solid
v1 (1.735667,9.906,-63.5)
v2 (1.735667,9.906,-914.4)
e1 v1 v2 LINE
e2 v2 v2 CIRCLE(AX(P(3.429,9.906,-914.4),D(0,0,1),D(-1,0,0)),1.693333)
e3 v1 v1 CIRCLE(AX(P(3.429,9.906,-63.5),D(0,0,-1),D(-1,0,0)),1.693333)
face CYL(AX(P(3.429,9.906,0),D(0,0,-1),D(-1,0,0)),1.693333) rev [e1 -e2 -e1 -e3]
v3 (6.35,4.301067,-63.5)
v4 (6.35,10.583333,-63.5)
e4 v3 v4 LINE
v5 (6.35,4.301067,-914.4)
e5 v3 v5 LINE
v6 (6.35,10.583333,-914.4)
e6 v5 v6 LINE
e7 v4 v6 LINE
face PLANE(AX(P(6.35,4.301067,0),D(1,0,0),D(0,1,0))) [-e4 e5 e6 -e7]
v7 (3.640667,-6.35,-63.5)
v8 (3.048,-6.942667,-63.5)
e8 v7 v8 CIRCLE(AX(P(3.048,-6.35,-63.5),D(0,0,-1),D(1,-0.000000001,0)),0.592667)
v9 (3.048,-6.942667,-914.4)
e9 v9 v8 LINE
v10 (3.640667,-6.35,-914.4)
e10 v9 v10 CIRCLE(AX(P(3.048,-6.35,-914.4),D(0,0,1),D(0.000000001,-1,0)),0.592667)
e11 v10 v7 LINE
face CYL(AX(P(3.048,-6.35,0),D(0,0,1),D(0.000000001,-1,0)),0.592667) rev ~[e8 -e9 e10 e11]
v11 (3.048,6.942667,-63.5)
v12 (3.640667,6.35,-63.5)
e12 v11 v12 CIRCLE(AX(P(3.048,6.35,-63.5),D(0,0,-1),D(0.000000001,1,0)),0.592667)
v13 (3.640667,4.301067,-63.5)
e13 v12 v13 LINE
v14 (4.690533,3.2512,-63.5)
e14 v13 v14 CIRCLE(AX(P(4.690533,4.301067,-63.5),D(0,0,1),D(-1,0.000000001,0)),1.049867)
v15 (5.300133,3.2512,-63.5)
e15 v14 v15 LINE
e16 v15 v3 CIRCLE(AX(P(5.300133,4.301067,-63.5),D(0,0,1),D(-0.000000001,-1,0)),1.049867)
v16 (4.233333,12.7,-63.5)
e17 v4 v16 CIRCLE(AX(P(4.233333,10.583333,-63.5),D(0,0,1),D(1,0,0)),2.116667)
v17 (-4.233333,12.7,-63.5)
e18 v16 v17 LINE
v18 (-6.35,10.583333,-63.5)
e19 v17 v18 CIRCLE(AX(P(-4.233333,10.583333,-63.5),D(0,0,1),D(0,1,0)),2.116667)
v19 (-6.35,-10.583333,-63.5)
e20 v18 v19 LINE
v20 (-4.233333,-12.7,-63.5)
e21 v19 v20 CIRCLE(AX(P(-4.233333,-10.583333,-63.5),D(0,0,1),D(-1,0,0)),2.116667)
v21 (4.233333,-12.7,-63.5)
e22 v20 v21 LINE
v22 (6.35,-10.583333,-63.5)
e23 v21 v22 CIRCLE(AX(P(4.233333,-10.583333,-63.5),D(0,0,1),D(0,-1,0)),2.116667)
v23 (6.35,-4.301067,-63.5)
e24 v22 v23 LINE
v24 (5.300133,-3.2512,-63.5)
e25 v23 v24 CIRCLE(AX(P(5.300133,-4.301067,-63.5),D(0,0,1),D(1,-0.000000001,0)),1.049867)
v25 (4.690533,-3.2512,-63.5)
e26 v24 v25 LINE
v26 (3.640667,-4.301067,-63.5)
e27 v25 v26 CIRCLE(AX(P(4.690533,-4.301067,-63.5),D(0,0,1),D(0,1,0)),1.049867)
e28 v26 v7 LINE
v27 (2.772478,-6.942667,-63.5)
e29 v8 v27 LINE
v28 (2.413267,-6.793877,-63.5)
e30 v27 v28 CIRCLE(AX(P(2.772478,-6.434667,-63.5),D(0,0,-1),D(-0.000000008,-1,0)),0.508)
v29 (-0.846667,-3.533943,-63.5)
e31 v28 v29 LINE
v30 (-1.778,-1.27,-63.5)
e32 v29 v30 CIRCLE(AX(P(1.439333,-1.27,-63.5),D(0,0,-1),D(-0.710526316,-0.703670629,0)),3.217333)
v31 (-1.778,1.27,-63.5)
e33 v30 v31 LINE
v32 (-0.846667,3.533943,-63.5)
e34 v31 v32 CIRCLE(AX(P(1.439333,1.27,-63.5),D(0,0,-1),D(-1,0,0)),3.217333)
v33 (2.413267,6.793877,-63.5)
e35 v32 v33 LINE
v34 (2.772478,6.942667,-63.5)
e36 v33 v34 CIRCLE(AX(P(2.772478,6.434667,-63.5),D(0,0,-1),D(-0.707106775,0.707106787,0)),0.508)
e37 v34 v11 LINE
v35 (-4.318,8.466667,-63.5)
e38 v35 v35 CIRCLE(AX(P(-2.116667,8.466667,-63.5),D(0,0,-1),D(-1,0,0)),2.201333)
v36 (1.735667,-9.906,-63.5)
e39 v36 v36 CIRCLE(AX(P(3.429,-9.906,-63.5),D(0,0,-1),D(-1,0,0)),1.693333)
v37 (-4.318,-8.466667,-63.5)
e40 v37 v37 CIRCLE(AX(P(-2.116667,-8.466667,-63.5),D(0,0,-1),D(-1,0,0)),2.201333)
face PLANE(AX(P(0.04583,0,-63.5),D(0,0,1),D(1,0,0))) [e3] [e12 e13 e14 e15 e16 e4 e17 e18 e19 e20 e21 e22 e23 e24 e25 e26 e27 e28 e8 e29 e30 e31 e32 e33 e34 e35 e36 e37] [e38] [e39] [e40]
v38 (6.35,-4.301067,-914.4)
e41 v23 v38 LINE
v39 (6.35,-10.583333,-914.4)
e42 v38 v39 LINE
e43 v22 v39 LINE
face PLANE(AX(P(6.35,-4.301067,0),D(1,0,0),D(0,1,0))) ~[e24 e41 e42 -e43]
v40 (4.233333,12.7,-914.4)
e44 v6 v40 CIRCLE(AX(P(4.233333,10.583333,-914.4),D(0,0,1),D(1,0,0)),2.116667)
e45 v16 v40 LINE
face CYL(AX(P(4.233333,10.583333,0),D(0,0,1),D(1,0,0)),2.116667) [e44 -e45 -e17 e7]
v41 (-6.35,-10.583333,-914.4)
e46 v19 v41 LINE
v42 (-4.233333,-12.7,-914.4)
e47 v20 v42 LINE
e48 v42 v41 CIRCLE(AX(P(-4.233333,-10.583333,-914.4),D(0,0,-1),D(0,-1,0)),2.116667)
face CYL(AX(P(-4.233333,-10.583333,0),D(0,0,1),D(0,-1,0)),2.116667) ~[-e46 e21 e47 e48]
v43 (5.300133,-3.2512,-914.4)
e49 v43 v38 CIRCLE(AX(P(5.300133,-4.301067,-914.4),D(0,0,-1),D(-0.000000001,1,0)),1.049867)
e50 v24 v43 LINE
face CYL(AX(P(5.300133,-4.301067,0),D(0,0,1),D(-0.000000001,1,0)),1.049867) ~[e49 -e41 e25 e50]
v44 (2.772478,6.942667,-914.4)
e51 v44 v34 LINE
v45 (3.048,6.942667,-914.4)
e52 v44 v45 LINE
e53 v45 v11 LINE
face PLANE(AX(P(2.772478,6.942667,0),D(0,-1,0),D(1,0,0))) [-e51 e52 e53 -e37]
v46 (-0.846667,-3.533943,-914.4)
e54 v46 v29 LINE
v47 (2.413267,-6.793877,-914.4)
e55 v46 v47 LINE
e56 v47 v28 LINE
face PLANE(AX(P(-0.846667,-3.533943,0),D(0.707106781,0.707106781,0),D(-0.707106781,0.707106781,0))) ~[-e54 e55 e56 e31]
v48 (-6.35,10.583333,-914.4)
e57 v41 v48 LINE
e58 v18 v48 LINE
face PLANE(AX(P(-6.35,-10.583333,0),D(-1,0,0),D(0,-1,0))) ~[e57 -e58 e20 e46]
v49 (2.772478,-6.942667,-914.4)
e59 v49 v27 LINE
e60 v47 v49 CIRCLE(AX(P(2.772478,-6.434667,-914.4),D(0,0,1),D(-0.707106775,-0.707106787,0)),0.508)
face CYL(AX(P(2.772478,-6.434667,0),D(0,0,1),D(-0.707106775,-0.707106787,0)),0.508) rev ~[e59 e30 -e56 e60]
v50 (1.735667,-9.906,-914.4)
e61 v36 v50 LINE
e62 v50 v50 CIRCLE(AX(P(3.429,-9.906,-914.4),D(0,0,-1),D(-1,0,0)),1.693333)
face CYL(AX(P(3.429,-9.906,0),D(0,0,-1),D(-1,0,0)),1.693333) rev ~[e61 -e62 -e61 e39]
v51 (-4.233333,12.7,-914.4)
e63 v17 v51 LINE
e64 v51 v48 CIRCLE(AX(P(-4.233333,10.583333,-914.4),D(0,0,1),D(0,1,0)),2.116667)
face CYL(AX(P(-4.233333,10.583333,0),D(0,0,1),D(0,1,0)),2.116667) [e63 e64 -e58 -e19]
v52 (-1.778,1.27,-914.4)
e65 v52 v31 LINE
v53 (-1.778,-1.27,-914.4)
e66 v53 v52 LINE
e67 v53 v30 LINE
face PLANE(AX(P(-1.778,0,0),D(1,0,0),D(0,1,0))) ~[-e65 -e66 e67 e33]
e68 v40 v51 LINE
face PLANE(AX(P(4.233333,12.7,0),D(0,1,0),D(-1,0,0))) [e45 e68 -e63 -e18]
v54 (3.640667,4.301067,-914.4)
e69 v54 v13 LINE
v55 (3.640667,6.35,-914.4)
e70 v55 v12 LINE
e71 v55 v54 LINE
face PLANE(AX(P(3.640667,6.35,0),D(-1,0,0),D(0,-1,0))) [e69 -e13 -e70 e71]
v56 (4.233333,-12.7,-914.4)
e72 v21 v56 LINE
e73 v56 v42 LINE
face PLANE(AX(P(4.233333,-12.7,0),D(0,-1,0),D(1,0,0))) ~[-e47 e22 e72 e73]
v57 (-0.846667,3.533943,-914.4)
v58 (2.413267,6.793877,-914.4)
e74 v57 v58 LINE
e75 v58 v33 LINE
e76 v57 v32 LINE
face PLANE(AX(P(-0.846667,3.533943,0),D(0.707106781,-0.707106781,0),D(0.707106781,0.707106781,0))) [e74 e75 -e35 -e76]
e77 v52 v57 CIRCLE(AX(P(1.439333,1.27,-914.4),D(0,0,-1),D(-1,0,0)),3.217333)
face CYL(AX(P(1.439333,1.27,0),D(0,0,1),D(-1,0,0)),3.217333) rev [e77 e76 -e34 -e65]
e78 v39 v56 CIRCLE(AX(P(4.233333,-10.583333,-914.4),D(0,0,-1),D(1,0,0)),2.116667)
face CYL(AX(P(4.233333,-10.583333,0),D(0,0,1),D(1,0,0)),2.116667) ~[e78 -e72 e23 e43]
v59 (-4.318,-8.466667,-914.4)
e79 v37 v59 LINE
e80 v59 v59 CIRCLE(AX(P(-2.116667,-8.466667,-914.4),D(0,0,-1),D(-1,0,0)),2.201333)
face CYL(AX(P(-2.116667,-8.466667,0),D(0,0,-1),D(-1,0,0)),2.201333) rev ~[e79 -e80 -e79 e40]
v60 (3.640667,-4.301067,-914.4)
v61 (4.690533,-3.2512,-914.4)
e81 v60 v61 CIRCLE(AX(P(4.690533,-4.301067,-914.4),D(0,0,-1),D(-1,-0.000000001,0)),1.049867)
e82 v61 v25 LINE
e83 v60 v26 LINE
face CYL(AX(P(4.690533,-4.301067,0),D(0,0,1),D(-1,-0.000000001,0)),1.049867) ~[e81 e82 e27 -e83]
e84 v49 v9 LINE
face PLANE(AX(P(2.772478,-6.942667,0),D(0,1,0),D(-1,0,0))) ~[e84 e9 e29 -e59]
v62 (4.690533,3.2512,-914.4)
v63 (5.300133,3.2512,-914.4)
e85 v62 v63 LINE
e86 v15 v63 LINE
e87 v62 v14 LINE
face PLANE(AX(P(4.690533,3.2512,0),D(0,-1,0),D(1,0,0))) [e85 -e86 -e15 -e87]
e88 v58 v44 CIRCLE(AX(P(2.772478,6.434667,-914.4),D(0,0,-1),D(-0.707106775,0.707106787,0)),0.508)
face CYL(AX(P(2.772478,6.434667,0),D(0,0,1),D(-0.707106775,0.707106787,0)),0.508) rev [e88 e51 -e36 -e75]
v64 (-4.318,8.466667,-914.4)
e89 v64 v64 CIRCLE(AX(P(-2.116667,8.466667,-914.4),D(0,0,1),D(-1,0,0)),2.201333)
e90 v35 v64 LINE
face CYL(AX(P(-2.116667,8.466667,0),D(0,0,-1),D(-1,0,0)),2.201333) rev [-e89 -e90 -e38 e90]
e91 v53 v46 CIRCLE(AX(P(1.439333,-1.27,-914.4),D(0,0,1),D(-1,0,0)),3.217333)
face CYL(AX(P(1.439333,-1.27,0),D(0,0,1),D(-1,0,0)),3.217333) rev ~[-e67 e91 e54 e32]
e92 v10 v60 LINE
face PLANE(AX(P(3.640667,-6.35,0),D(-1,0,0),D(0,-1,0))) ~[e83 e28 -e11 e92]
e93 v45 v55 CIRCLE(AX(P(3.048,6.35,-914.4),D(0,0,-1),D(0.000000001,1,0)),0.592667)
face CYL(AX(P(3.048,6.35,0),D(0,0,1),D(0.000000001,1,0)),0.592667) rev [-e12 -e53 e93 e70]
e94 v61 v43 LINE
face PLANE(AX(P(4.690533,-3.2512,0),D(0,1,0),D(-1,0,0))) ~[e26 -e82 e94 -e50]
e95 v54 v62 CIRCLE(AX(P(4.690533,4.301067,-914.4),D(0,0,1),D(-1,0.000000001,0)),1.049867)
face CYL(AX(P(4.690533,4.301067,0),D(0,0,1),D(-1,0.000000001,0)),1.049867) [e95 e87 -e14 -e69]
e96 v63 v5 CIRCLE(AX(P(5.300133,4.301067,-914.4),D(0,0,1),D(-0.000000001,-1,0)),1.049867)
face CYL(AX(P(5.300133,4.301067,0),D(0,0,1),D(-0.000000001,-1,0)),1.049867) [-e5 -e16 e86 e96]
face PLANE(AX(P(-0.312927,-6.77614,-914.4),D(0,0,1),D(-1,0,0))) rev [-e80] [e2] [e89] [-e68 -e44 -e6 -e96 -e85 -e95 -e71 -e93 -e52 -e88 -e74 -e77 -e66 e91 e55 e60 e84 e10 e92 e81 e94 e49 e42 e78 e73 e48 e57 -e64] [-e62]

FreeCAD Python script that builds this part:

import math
import FreeCAD as App
import Part
import Sketcher
from FreeCAD import Vector
Q = App.Units.Quantity

doc = App.newDocument("Part")
body = doc.addObject("PartDesign::Body", "Body")

# Sketch on XY plane
sketch1 = body.newObject("Sketcher::SketchObject", "Sketch")
sketch1.AttachmentSupport = (doc.getObject("XY_Plane"), [""])
sketch1.MapMode = "FlatFace"
sketch1.addGeometry([
    Part.LineSegment(Vector(-1.778, 0, 0), Vector(-1.778, 1.27, 0)),  # 0
    Part.ArcOfCircle(Part.Circle(Vector(1.439333, 1.27, 0), Vector(0, 0, 1), 3.217333), math.radians(135.277754), math.radians(180)),  # 1
    Part.LineSegment(Vector(-0.846667, 3.533943, 0), Vector(2.413267, 6.793877, 0)),  # 2
    Part.ArcOfCircle(Part.Circle(Vector(2.772478, 6.434667, 0), Vector(0, 0, 1), 0.508), math.radians(90), math.radians(135)),  # 3
    Part.LineSegment(Vector(2.772478, 6.942667, 0), Vector(3.048, 6.942667, 0)),  # 4
    Part.ArcOfCircle(Part.Circle(Vector(3.048, 6.35, 0), Vector(0, 0, 1), 0.592667), math.radians(0), math.radians(90)),  # 5
    Part.LineSegment(Vector(3.640667, 6.35, 0), Vector(3.640667, 4.301067, 0)),  # 6
    Part.ArcOfCircle(Part.Circle(Vector(4.690533, 4.301067, 0), Vector(0, 0, 1), 1.049867), math.radians(180), math.radians(270)),  # 7
    Part.LineSegment(Vector(4.690533, 3.2512, 0), Vector(5.300133, 3.2512, 0)),  # 8
    Part.ArcOfCircle(Part.Circle(Vector(5.300133, 4.301067, 0), Vector(0, 0, 1), 1.049867), math.radians(-90), math.radians(0)),  # 9
    Part.LineSegment(Vector(6.35, 4.301067, 0), Vector(6.35, 10.583333, 0)),  # 10
    Part.ArcOfCircle(Part.Circle(Vector(4.233333, 10.583333, 0), Vector(0, 0, 1), 2.116667), math.radians(0), math.radians(90)),  # 11
    Part.LineSegment(Vector(4.233333, 12.7, 0), Vector(-4.233333, 12.7, 0)),  # 12
    Part.ArcOfCircle(Part.Circle(Vector(-4.233333, 10.583333, 0), Vector(0, 0, 1), 2.116667), math.radians(90), math.radians(180)),  # 13
    Part.LineSegment(Vector(-6.35, 10.583333, 0), Vector(-6.35, 0, 0)),  # 14
    Part.LineSegment(Vector(-6.35, 0, 0), Vector(-1.778, 0, 0)),  # 15
    Part.Circle(Vector(-2.116667, 8.466667, 0), Vector(0, 0, 1), 2.201333),  # 16
    Part.Circle(Vector(3.429, 9.906, 0), Vector(0, 0, 1), 1.693333),  # 17
], False)
sketch1.addConstraint([
    Sketcher.Constraint("Tangent", 0, 2, 1, 2),
    Sketcher.Constraint("Coincident", 1, 1, 2, 1),
    Sketcher.Constraint("Tangent", 2, 2, 3, 2),
    Sketcher.Constraint("Tangent", 3, 1, 4, 1),
    Sketcher.Constraint("Tangent", 4, 2, 5, 2),
    Sketcher.Constraint("Tangent", 5, 1, 6, 1),
    Sketcher.Constraint("Tangent", 6, 2, 7, 1),
    Sketcher.Constraint("Tangent", 7, 2, 8, 1),
    Sketcher.Constraint("Tangent", 8, 2, 9, 1),
    Sketcher.Constraint("Tangent", 9, 2, 10, 1),
    Sketcher.Constraint("Tangent", 10, 2, 11, 1),
    Sketcher.Constraint("Tangent", 11, 2, 12, 1),
    Sketcher.Constraint("Tangent", 12, 2, 13, 1),
    Sketcher.Constraint("Tangent", 13, 2, 14, 1),
    Sketcher.Constraint("Coincident", 14, 2, 15, 1),
    Sketcher.Constraint("Coincident", 15, 2, 0, 1),
    Sketcher.Constraint("Vertical", 0),
    Sketcher.Constraint("Horizontal", 4),
    Sketcher.Constraint("Vertical", 6),
    Sketcher.Constraint("Horizontal", 8),
    Sketcher.Constraint("Vertical", 10),
    Sketcher.Constraint("Horizontal", 12),
    Sketcher.Constraint("Vertical", 14),
    Sketcher.Constraint("Horizontal", 15),
    Sketcher.Constraint("Equal", 7, 9),
    Sketcher.Constraint("Equal", 11, 13),
    Sketcher.Constraint("PointOnObject", 14, 2, -1),
    Sketcher.Constraint("Radius", 3, Q("0.02 in")),
    Sketcher.Constraint("Angle", 2, Q("45 deg")),
    Sketcher.Constraint("DistanceX", 15, 1, 15, 2, Q("0.18 in")),
    Sketcher.Constraint("DistanceY", 0, 1, 0, 2, Q("0.05 in")),
    Sketcher.Constraint("DistanceY", -1, 1, 11, 2, Q("0.5 in")),
    Sketcher.Constraint("DistanceY", 1, 3, 5, 3, Q("0.2 in")),
    Sketcher.Constraint("DistanceX", 8, 1, 8, 2, Q("0.024 in")),
    Sketcher.Constraint("DistanceX", -1, 1, 5, 3, Q("0.12 in")),
    Sketcher.Constraint("DistanceY", -1, 1, 17, 3, Q("0.39 in")),
    Sketcher.Constraint("DistanceX", 0, 2, -1, 1, Q("0.07 in")),
    Sketcher.Constraint("DistanceX", -1, 1, 9, 2, Q("0.25 in")),
    Sketcher.Constraint("DistanceX", 1, 3, 11, 3, Q("0.11 in")),
    Sketcher.Constraint("DistanceY", 3, 3, 16, 3, Q("0.08 in")),
    Sketcher.Constraint("DistanceX", 16, 3, 11, 3, Q("0.25 in")),
    Sketcher.Constraint("DistanceX", 1, 1, 1, 3, Q("0.09 in")),
    Sketcher.Constraint("DistanceX", -1, 1, 17, 3, Q("0.135 in")),
    Sketcher.Constraint("DistanceY", -1, 1, 7, 2, Q("0.128 in")),
    Sketcher.Constraint("DistanceY", 7, 3, 3, 3, Q("0.084 in")),
    Sketcher.Constraint("DistanceX", 1, 3, 7, 3, Q("0.128 in")),
    Sketcher.Constraint("Diameter", 16, 4.402667),
    Sketcher.Constraint("Diameter", 17, 3.386667),
])
pad1 = body.newObject("PartDesign::Pad", "Pad")
pad1.Profile = sketch1
pad1.Length = Q("72 in")
pad1.Midplane = True
body2 = doc.addObject("PartDesign::Body", "Body001")
doc.recompute()

body2.BaseFeature = body
doc.recompute()

mirroring = doc.addObject("Part::Mirroring", "Mirroring")
mirroring.Source = body
mirroring.Base = Vector(0, 0, 0)
mirroring.Normal = Vector(0, 1, 0)
body3 = doc.addObject("PartDesign::Body", "Body002")
body3.BaseFeature = mirroring
boolean = body2.newObject("PartDesign::Boolean", "Boolean")
boolean.Type = "Fuse"
boolean.addObjects([body3])
doc.recompute()

# Sketch on XY plane
sketch2 = body2.newObject("Sketcher::SketchObject", "Sketch001")
sketch2.AttachmentSupport = (doc.getObject("XY_Plane001"), [""])
sketch2.MapMode = "FlatFace"
sketch2.AttachmentOffset = App.Placement(Vector(0, 0, 36 * 25.4), App.Rotation())
sketch2.addGeometry([
    Part.LineSegment(Vector(-6.35, 10.583333, 0), Vector(-6.35, -10.583333, 0)),  # 0
    Part.ArcOfCircle(Part.Circle(Vector(-4.233333, -10.583333, 0), Vector(0, 0, 1), 2.116667), math.radians(180), math.radians(270)),  # 1
    Part.LineSegment(Vector(-4.233333, -12.7, 0), Vector(4.233333, -12.7, 0)),  # 2
    Part.ArcOfCircle(Part.Circle(Vector(4.233333, -10.583333, 0), Vector(0, 0, 1), 2.116667), math.radians(-90), math.radians(0)),  # 3
    Part.LineSegment(Vector(6.35, -10.583333, 0), Vector(6.35, -4.301067, 0)),  # 4
    Part.ArcOfCircle(Part.Circle(Vector(5.300133, -4.301067, 0), Vector(0, 0, 1), 1.049867), math.radians(0), math.radians(90)),  # 5
    Part.LineSegment(Vector(5.300133, -3.2512, 0), Vector(4.690533, -3.2512, 0)),  # 6
    Part.ArcOfCircle(Part.Circle(Vector(4.690533, -4.301067, 0), Vector(0, 0, 1), 1.049867), math.radians(90), math.radians(180)),  # 7
    Part.LineSegment(Vector(3.640667, -4.301067, 0), Vector(3.640667, -6.35, 0)),  # 8
    Part.ArcOfCircle(Part.Circle(Vector(3.048, -6.35, 0), Vector(0, 0, 1), 0.592667), math.radians(-90), math.radians(0)),  # 9
    Part.LineSegment(Vector(3.048, -6.942667, 0), Vector(2.772478, -6.942667, 0)),  # 10
    Part.ArcOfCircle(Part.Circle(Vector(2.772478, -6.434667, 0), Vector(0, 0, 1), 0.508), math.radians(-135), math.radians(-90)),  # 11
    Part.LineSegment(Vector(2.413267, -6.793877, 0), Vector(-0.846667, -3.533943, 0)),  # 12
    Part.ArcOfCircle(Part.Circle(Vector(1.439333, -1.27, 0), Vector(0, 0, 1), 3.217333), math.radians(-180), math.radians(-135.277754)),  # 13
    Part.LineSegment(Vector(-1.778, -1.27, 0), Vector(-1.778, 1.27, 0)),  # 14
    Part.ArcOfCircle(Part.Circle(Vector(1.439333, 1.27, 0), Vector(0, 0, 1), 3.217333), math.radians(135.277754), math.radians(180)),  # 15
    Part.LineSegment(Vector(-0.846667, 3.533943, 0), Vector(2.413267, 6.793877, 0)),  # 16
    Part.ArcOfCircle(Part.Circle(Vector(2.772478, 6.434667, 0), Vector(0, 0, 1), 0.508), math.radians(90), math.radians(135)),  # 17
    Part.LineSegment(Vector(2.772478, 6.942667, 0), Vector(3.048, 6.942667, 0)),  # 18
    Part.ArcOfCircle(Part.Circle(Vector(3.048, 6.35, 0), Vector(0, 0, 1), 0.592667), math.radians(0), math.radians(90)),  # 19
    Part.LineSegment(Vector(3.640667, 6.35, 0), Vector(3.640667, 4.301067, 0)),  # 20
    Part.ArcOfCircle(Part.Circle(Vector(4.690533, 4.301067, 0), Vector(0, 0, 1), 1.049867), math.radians(180), math.radians(270)),  # 21
    Part.LineSegment(Vector(4.690533, 3.2512, 0), Vector(5.300133, 3.2512, 0)),  # 22
    Part.ArcOfCircle(Part.Circle(Vector(5.300133, 4.301067, 0), Vector(0, 0, 1), 1.049867), math.radians(-90), math.radians(0)),  # 23
    Part.LineSegment(Vector(6.35, 4.301067, 0), Vector(6.35, 10.583333, 0)),  # 24
    Part.ArcOfCircle(Part.Circle(Vector(4.233333, 10.583333, 0), Vector(0, 0, 1), 2.116667), math.radians(0), math.radians(90)),  # 25
    Part.LineSegment(Vector(4.233333, 12.7, 0), Vector(-4.233333, 12.7, 0)),  # 26
    Part.ArcOfCircle(Part.Circle(Vector(-4.233333, 10.583333, 0), Vector(0, 0, 1), 2.116667), math.radians(90), math.radians(180)),  # 27
], False)
sketch2.addConstraint([
    Sketcher.Constraint("Tangent", 0, 2, 1, 1),
    Sketcher.Constraint("Tangent", 1, 2, 2, 1),
    Sketcher.Constraint("Tangent", 2, 2, 3, 1),
    Sketcher.Constraint("Tangent", 3, 2, 4, 1),
    Sketcher.Constraint("Tangent", 4, 2, 5, 1),
    Sketcher.Constraint("Tangent", 5, 2, 6, 1),
    Sketcher.Constraint("Tangent", 6, 2, 7, 1),
    Sketcher.Constraint("Tangent", 7, 2, 8, 1),
    Sketcher.Constraint("Tangent", 8, 2, 9, 2),
    Sketcher.Constraint("Tangent", 9, 1, 10, 1),
    Sketcher.Constraint("Tangent", 10, 2, 11, 2),
    Sketcher.Constraint("Tangent", 11, 1, 12, 1),
    Sketcher.Constraint("Coincident", 12, 2, 13, 2),
    Sketcher.Constraint("Tangent", 13, 1, 14, 1),
    Sketcher.Constraint("Tangent", 14, 2, 15, 2),
    Sketcher.Constraint("Coincident", 15, 1, 16, 1),
    Sketcher.Constraint("Tangent", 16, 2, 17, 2),
    Sketcher.Constraint("Tangent", 17, 1, 18, 1),
    Sketcher.Constraint("Tangent", 18, 2, 19, 2),
    Sketcher.Constraint("Tangent", 19, 1, 20, 1),
    Sketcher.Constraint("Tangent", 20, 2, 21, 1),
    Sketcher.Constraint("Tangent", 21, 2, 22, 1),
    Sketcher.Constraint("Tangent", 22, 2, 23, 1),
    Sketcher.Constraint("Tangent", 23, 2, 24, 1),
    Sketcher.Constraint("Tangent", 24, 2, 25, 1),
    Sketcher.Constraint("Tangent", 25, 2, 26, 1),
    Sketcher.Constraint("Tangent", 26, 2, 27, 1),
    Sketcher.Constraint("Tangent", 27, 2, 0, 1),
    Sketcher.Constraint("Vertical", 0),
    Sketcher.Constraint("Horizontal", 2),
    Sketcher.Constraint("Vertical", 4),
    Sketcher.Constraint("Horizontal", 6),
    Sketcher.Constraint("Vertical", 8),
    Sketcher.Constraint("Horizontal", 10),
    Sketcher.Constraint("Vertical", 14),
    Sketcher.Constraint("Horizontal", 18),
    Sketcher.Constraint("Vertical", 20),
    Sketcher.Constraint("Horizontal", 22),
    Sketcher.Constraint("Vertical", 24),
    Sketcher.Constraint("Horizontal", 26),
    Sketcher.Constraint("Equal", 1, 3),
    Sketcher.Constraint("Equal", 5, 7),
    Sketcher.Constraint("Equal", 13, 15),
    Sketcher.Constraint("Equal", 11, 17),
    Sketcher.Constraint("Equal", 9, 19),
    Sketcher.Constraint("Equal", 7, 21),
    Sketcher.Constraint("Equal", 21, 23),
    Sketcher.Constraint("Equal", 3, 25),
    Sketcher.Constraint("Equal", 25, 27),
    Sketcher.Constraint("Symmetric", 1, 3, 25, 3, -1, 1),
    Sketcher.Constraint("Symmetric", 11, 3, 17, 3, -1),
    Sketcher.Constraint("Symmetric", 7, 3, 21, 3, -1),
    Sketcher.Constraint("Symmetric", 12, 2, 15, 1, -1),
    Sketcher.Constraint("Perpendicular", 12, 16),
    Sketcher.Constraint("Vertical", 5, 3, 23, 3),
    Sketcher.Constraint("Radius", 11, Q("0.02 in")),
    Sketcher.Constraint("DistanceY", 14, 1, 14, 2, Q("0.1 in")),
    Sketcher.Constraint("DistanceY", 1, 2, -1, 1, Q("0.5 in")),
    Sketcher.Constraint("DistanceY", 9, 3, 13, 3, Q("0.2 in")),
    Sketcher.Constraint("DistanceX", 6, 2, 6, 1, Q("0.024 in")),
    Sketcher.Constraint("DistanceX", -1, 1, 9, 3, Q("0.12 in")),
    Sketcher.Constraint("DistanceX", 0, 2, -1, 1, Q("0.25 in")),
    Sketcher.Constraint("DistanceX", 13, 1, -1, 1, Q("0.07 in")),
    Sketcher.Constraint("DistanceX", 13, 3, 3, 3, Q("0.11 in")),
    Sketcher.Constraint("DistanceX", 12, 2, 13, 3, Q("0.09 in")),
    Sketcher.Constraint("DistanceY", 5, 2, -1, 1, Q("0.128 in")),
    Sketcher.Constraint("DistanceX", 3, 3, 5, 3, Q("0.042 in")),
    Sketcher.Constraint("DistanceY", 11, 3, 7, 3, Q("0.084 in")),
])
pocket1 = body2.newObject("PartDesign::Pocket", "Pocket")
pocket1.Profile = sketch2
pocket1.Length = Q("38.5 in")
mirroring.Visibility = False

doc.recompute()
